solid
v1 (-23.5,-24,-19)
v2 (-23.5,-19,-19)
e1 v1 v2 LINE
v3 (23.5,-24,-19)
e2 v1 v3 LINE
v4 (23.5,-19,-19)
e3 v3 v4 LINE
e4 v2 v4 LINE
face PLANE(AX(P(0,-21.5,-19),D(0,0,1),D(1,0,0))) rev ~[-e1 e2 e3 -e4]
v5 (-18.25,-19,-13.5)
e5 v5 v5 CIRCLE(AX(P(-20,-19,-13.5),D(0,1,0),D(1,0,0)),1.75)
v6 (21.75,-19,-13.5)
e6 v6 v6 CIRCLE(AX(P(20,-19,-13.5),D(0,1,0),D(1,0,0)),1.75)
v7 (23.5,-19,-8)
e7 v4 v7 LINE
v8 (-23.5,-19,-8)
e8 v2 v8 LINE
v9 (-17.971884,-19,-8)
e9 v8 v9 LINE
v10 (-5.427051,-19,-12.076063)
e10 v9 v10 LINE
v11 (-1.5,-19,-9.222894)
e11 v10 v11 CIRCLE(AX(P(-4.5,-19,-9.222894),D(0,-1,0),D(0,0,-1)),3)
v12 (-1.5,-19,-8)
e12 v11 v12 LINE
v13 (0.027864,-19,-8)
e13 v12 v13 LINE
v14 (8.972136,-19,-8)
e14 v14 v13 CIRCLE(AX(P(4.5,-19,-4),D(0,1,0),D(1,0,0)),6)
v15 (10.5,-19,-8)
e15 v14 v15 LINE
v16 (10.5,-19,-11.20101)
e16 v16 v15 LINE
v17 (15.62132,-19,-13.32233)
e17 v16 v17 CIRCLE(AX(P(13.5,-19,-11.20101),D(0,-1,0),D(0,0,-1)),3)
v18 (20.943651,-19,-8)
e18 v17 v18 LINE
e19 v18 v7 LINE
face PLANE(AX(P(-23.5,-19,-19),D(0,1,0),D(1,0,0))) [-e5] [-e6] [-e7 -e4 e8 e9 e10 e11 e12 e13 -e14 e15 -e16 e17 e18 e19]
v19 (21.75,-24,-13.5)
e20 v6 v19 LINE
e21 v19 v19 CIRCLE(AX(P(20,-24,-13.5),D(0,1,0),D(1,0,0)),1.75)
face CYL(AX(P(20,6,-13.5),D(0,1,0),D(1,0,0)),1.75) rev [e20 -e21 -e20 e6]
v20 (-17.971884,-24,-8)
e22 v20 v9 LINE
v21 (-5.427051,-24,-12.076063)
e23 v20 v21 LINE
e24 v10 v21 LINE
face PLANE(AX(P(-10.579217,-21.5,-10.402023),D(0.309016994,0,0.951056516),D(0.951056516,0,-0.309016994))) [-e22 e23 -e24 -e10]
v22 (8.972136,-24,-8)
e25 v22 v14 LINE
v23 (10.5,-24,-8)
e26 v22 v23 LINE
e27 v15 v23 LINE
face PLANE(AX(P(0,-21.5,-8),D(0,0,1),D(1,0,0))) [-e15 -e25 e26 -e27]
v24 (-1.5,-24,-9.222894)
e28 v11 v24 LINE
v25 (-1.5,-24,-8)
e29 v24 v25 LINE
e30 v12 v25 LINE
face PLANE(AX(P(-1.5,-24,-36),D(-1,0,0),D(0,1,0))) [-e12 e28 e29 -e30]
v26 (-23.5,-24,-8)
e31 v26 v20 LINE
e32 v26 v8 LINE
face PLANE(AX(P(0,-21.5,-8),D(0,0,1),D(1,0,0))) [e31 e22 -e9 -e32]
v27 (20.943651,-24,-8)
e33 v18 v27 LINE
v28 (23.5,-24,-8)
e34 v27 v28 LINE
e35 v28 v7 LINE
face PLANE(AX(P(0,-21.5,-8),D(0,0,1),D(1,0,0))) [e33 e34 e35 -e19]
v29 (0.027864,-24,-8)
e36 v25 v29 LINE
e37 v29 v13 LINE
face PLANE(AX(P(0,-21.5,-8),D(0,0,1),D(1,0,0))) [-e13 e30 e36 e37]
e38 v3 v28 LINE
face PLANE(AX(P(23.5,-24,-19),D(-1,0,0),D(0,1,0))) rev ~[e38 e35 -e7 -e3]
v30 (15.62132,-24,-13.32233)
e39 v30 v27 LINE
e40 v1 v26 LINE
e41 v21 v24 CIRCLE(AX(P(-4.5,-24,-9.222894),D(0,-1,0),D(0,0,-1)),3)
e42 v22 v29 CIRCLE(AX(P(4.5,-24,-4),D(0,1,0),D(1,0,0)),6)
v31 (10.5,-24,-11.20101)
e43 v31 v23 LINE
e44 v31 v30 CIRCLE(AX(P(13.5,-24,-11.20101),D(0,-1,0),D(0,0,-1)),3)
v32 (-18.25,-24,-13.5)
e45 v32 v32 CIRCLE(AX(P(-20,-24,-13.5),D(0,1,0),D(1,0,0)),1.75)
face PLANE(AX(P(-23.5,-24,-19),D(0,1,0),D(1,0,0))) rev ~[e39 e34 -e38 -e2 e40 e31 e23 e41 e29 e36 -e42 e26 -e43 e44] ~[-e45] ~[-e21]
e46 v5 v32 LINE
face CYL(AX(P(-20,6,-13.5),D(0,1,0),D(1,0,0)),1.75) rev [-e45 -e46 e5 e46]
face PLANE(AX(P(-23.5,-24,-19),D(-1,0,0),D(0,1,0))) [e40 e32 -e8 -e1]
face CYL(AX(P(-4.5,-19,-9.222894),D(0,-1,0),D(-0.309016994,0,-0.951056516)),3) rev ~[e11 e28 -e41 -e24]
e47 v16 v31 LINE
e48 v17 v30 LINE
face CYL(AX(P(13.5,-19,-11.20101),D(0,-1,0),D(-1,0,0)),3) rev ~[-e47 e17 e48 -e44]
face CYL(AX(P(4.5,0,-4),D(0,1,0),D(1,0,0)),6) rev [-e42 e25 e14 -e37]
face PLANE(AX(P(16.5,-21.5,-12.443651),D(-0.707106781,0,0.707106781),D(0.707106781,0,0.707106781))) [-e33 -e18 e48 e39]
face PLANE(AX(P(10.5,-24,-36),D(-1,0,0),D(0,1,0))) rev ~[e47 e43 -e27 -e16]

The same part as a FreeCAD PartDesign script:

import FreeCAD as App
import Part
import Sketcher
from FreeCAD import Vector
Q = App.Units.Quantity


def edges_at(feature, points):
    """Names of the edges that pass closest to the given points."""
    edges = feature.Shape.Edges
    near = lambda p: min(range(len(edges)), key=lambda i: edges[i].distToShape(Part.Vertex(*p))[0])
    return sorted({f"Edge{near(p) + 1}" for p in points})

doc = App.newDocument("Part")
body = doc.addObject("PartDesign::Body", "Body")

# Sketch on XY plane
sketch1 = doc.addObject("Sketcher::SketchObject", "Sketch")
body.addObject(sketch1)
sketch1.AttachmentSupport = (doc.XY_Plane, [""])
sketch1.MapMode = "FlatFace"
sketch1.addGeometry(Part.Circle(Vector(0, 0, 0), Vector(0, 0, 1), 1.75), False)
sketch1.addConstraint(Sketcher.Constraint("Coincident", 0, 3, -1, 1))
sketch1.addConstraint(Sketcher.Constraint("Diameter", 0, Q("3.5 mm")))
pad1 = doc.addObject("PartDesign::Pad", "Pad")
body.addObject(pad1)
pad1.Profile = sketch1
pad1.Length = 44
body2 = doc.addObject("PartDesign::Body", "Body001")
doc.recompute()

body.Placement = App.Placement(Vector(0, 0, 0), App.Rotation(Vector(1, 0, 0), 90))
boolean = doc.addObject("PartDesign::Boolean", "Boolean")
body2.addObject(boolean)
boolean.Type = "Fuse"
boolean.addObjects([body])
body3 = doc.addObject("PartDesign::Body", "Body002")
doc.recompute()

body2.Placement = App.Placement(Vector(20, 6, -13.5), App.Rotation(Vector(0, 0, 1), 0))
boolean2 = doc.addObject("PartDesign::Boolean", "Boolean001")
body3.addObject(boolean2)
boolean2.Type = "Fuse"
boolean2.addObjects([body2])
body4 = doc.addObject("PartDesign::Body", "Body003")

# Sketch on XY plane
sketch2 = doc.addObject("Sketcher::SketchObject", "Sketch001")
body4.addObject(sketch2)
sketch2.AttachmentSupport = (doc.getObject("XY_Plane003"), [""])
sketch2.MapMode = "FlatFace"
sketch2.addGeometry(Part.Circle(Vector(0, 0, 0), Vector(0, 0, 1), 1.75), False)
sketch2.addConstraint(Sketcher.Constraint("Coincident", 0, 3, -1, 1))
sketch2.addConstraint(Sketcher.Constraint("Diameter", 0, Q("3.5 mm")))
pad2 = doc.addObject("PartDesign::Pad", "Pad001")
body4.addObject(pad2)
pad2.Profile = sketch2
pad2.Length = 44
body5 = doc.addObject("PartDesign::Body", "Body004")
doc.recompute()

body4.Placement = App.Placement(Vector(0, 0, 0), App.Rotation(Vector(1, 0, 0), 90))
boolean3 = doc.addObject("PartDesign::Boolean", "Boolean002")
body5.addObject(boolean3)
boolean3.Type = "Fuse"
boolean3.addObjects([body4])
body6 = doc.addObject("PartDesign::Body", "Body005")
doc.recompute()

body5.Placement = App.Placement(Vector(-20, 6, -13.5), App.Rotation(Vector(0, 0, 1), 0))
boolean4 = doc.addObject("PartDesign::Boolean", "Boolean003")
body6.addObject(boolean4)
boolean4.Type = "Fuse"
boolean4.addObjects([body5])
body7 = doc.addObject("PartDesign::Body", "Body006")

# Sketch on XY plane
sketch3 = doc.addObject("Sketcher::SketchObject", "Sketch002")
body7.addObject(sketch3)
sketch3.AttachmentSupport = (doc.getObject("XY_Plane006"), [""])
sketch3.MapMode = "FlatFace"
sketch3.addGeometry(Part.Circle(Vector(0, 0, 0), Vector(0, 0, 1), 6), False)
sketch3.addConstraint(Sketcher.Constraint("Coincident", 0, 3, -1, 1))
sketch3.addConstraint(Sketcher.Constraint("Diameter", 0, Q("12 mm")))
pad3 = doc.addObject("PartDesign::Pad", "Pad002")
body7.addObject(pad3)
pad3.Profile = sketch3
pad3.Length = 34
body8 = doc.addObject("PartDesign::Body", "Body007")
doc.recompute()

body7.Placement = App.Placement(Vector(0, 0, 0), App.Rotation(Vector(1, 0, 0), 90))
boolean5 = doc.addObject("PartDesign::Boolean", "Boolean004")
body8.addObject(boolean5)
boolean5.Type = "Fuse"
boolean5.addObjects([body7])
body9 = doc.addObject("PartDesign::Body", "Body008")
doc.recompute()

body8.Placement = App.Placement(Vector(4.5, 0, -4), App.Rotation(Vector(0, 0, 1), 0))
boolean6 = doc.addObject("PartDesign::Boolean", "Boolean005")
body9.addObject(boolean6)
boolean6.Type = "Fuse"
boolean6.addObjects([body8])
body10 = doc.addObject("PartDesign::Body", "Body009")
body10.AllowCompound = True
doc.recompute()

body10.BaseFeature = body9
doc.recompute()

boolean7 = doc.addObject("PartDesign::Boolean", "Boolean006")
body10.addObject(boolean7)
boolean7.Type = "Fuse"
boolean7.addObjects([body3])
doc.recompute()

boolean8 = doc.addObject("PartDesign::Boolean", "Boolean007")
body10.addObject(boolean8)
boolean8.Type = "Fuse"
boolean8.addObjects([body6])
body11 = doc.addObject("PartDesign::Body", "Body010")

# Sketch on XY plane
sketch4 = doc.addObject("Sketcher::SketchObject", "Sketch003")
body11.addObject(sketch4)
sketch4.AttachmentSupport = (doc.getObject("XY_Plane010"), [""])
sketch4.MapMode = "FlatFace"
sketch4.addGeometry(Part.Circle(Vector(0, 0, 0), Vector(0, 0, 1), 1.75), False)
sketch4.addConstraint(Sketcher.Constraint("Coincident", 0, 3, -1, 1))
sketch4.addConstraint(Sketcher.Constraint("Diameter", 0, Q("3.5 mm")))
pad4 = doc.addObject("PartDesign::Pad", "Pad003")
body11.addObject(pad4)
pad4.Profile = sketch4
pad4.Length = 44
body12 = doc.addObject("PartDesign::Body", "Body011")
doc.recompute()

body11.Placement = App.Placement(Vector(0, 0, 0), App.Rotation(Vector(1, 0, 0), 90))
boolean9 = doc.addObject("PartDesign::Boolean", "Boolean008")
body12.addObject(boolean9)
boolean9.Type = "Fuse"
boolean9.addObjects([body11])
body13 = doc.addObject("PartDesign::Body", "Body012")
doc.recompute()

body12.Placement = App.Placement(Vector(-20, 6, -2.5), App.Rotation(Vector(0, 0, 1), 0))
boolean10 = doc.addObject("PartDesign::Boolean", "Boolean009")
body13.addObject(boolean10)
boolean10.Type = "Fuse"
boolean10.addObjects([body12])
body14 = doc.addObject("PartDesign::Body", "Body013")

# Sketch on XY plane
sketch5 = doc.addObject("Sketcher::SketchObject", "Sketch004")
body14.addObject(sketch5)
sketch5.AttachmentSupport = (doc.getObject("XY_Plane013"), [""])
sketch5.MapMode = "FlatFace"
sketch5.addGeometry(Part.LineSegment(Vector(0, 5, 0), Vector(0, 0, 0)), False)
sketch5.addGeometry(Part.LineSegment(Vector(0, 0, 0), Vector(37, 0, 0)), False)
sketch5.addGeometry(Part.LineSegment(Vector(37, 0, 0), Vector(37, 5, 0)), False)
sketch5.addGeometry(Part.LineSegment(Vector(37, 5, 0), Vector(0, 5, 0)), False)
sketch5.addConstraint(Sketcher.Constraint("Coincident", 0, 2, 1, 1))
sketch5.addConstraint(Sketcher.Constraint("Coincident", 1, 2, 2, 1))
sketch5.addConstraint(Sketcher.Constraint("Coincident", 2, 2, 3, 1))
sketch5.addConstraint(Sketcher.Constraint("Coincident", 3, 2, 0, 1))
sketch5.addConstraint(Sketcher.Constraint("Vertical", 0))
sketch5.addConstraint(Sketcher.Constraint("Horizontal", 1))
sketch5.addConstraint(Sketcher.Constraint("Vertical", 2))
sketch5.addConstraint(Sketcher.Constraint("Horizontal", 3))
sketch5.addConstraint(Sketcher.Constraint("Coincident", 0, 2, -1, 1))
sketch5.addConstraint(Sketcher.Constraint("DistanceX", 1, 1, 1, 2, Q("37 mm")))
sketch5.addConstraint(Sketcher.Constraint("DistanceY", 0, 2, 0, 1, Q("5 mm")))
pad5 = doc.addObject("PartDesign::Pad", "Pad004")
body14.addObject(pad5)
pad5.Profile = sketch5
pad5.Length = 14
body15 = doc.addObject("PartDesign::Body", "Body014")
doc.recompute()

body14.Placement = App.Placement(Vector(0, 0, 0), App.Rotation(Vector(0, 1, 0), 18))
boolean11 = doc.addObject("PartDesign::Boolean", "Boolean010")
body15.addObject(boolean11)
boolean11.Type = "Fuse"
boolean11.addObjects([body14])
body16 = doc.addObject("PartDesign::Body", "Body015")
doc.recompute()

body15.Placement = App.Placement(Vector(-32.5, -24, -17), App.Rotation(Vector(0, 0, 1), 0))
boolean12 = doc.addObject("PartDesign::Boolean", "Boolean011")
body16.addObject(boolean12)
boolean12.Type = "Fuse"
boolean12.addObjects([body15])
body17 = doc.addObject("PartDesign::Body", "Body016")

# Sketch on XY plane
sketch6 = doc.addObject("Sketcher::SketchObject", "Sketch005")
body17.addObject(sketch6)
sketch6.AttachmentSupport = (doc.getObject("XY_Plane016"), [""])
sketch6.MapMode = "FlatFace"
sketch6.addGeometry(Part.LineSegment(Vector(0, 5, 0), Vector(0, 0, 0)), False)
sketch6.addGeometry(Part.LineSegment(Vector(0, 0, 0), Vector(22, 0, 0)), False)
sketch6.addGeometry(Part.LineSegment(Vector(22, 0, 0), Vector(22, 5, 0)), False)
sketch6.addGeometry(Part.LineSegment(Vector(22, 5, 0), Vector(0, 5, 0)), False)
sketch6.addConstraint(Sketcher.Constraint("Coincident", 0, 2, 1, 1))
sketch6.addConstraint(Sketcher.Constraint("Coincident", 1, 2, 2, 1))
sketch6.addConstraint(Sketcher.Constraint("Coincident", 2, 2, 3, 1))
sketch6.addConstraint(Sketcher.Constraint("Coincident", 3, 2, 0, 1))
sketch6.addConstraint(Sketcher.Constraint("Vertical", 0))
sketch6.addConstraint(Sketcher.Constraint("Horizontal", 1))
sketch6.addConstraint(Sketcher.Constraint("Vertical", 2))
sketch6.addConstraint(Sketcher.Constraint("Horizontal", 3))
sketch6.addConstraint(Sketcher.Constraint("Coincident", 0, 2, -1, 1))
sketch6.addConstraint(Sketcher.Constraint("DistanceX", 1, 1, 1, 2, Q("22 mm")))
sketch6.addConstraint(Sketcher.Constraint("DistanceY", 0, 2, 0, 1, Q("5 mm")))
pad6 = doc.addObject("PartDesign::Pad", "Pad005")
body17.addObject(pad6)
pad6.Profile = sketch6
pad6.Length = 11
body18 = doc.addObject("PartDesign::Body", "Body017")
doc.recompute()

body17.Placement = App.Placement(Vector(0, 0, 0), App.Rotation(Vector(0, 1, 0), 315))
boolean13 = doc.addObject("PartDesign::Boolean", "Boolean012")
body18.addObject(boolean13)
boolean13.Type = "Fuse"
boolean13.addObjects([body17])
body19 = doc.addObject("PartDesign::Body", "Body018")
doc.recompute()

body18.Placement = App.Placement(Vector(16.5, -24, -27), App.Rotation(Vector(0, 0, 1), 0))
boolean14 = doc.addObject("PartDesign::Boolean", "Boolean013")
body19.addObject(boolean14)
boolean14.Type = "Fuse"
boolean14.addObjects([body18])
body20 = doc.addObject("PartDesign::Body", "Body019")

# Sketch on XY plane
sketch7 = doc.addObject("Sketcher::SketchObject", "Sketch006")
body20.addObject(sketch7)
sketch7.AttachmentSupport = (doc.getObject("XY_Plane019"), [""])
sketch7.MapMode = "FlatFace"
sketch7.AttachmentOffset = App.Placement(Vector(0, 0, -35), App.Rotation())
sketch7.addGeometry(Part.LineSegment(Vector(-1.5, -19, 0), Vector(-1.5, -24, 0)), False)
sketch7.addGeometry(Part.LineSegment(Vector(-1.5, -24, 0), Vector(10.5, -24, 0)), False)
sketch7.addGeometry(Part.LineSegment(Vector(10.5, -24, 0), Vector(10.5, -19, 0)), False)
sketch7.addGeometry(Part.LineSegment(Vector(10.5, -19, 0), Vector(-1.5, -19, 0)), False)
sketch7.addConstraint(Sketcher.Constraint("Coincident", 0, 2, 1, 1))
sketch7.addConstraint(Sketcher.Constraint("Coincident", 1, 2, 2, 1))
sketch7.addConstraint(Sketcher.Constraint("Coincident", 2, 2, 3, 1))
sketch7.addConstraint(Sketcher.Constraint("Coincident", 3, 2, 0, 1))
sketch7.addConstraint(Sketcher.Constraint("Vertical", 0))
sketch7.addConstraint(Sketcher.Constraint("Horizontal", 1))
sketch7.addConstraint(Sketcher.Constraint("Vertical", 2))
sketch7.addConstraint(Sketcher.Constraint("Horizontal", 3))
sketch7.addConstraint(Sketcher.Constraint("DistanceX", 1, 1, 1, 2, Q("12 mm")))
sketch7.addConstraint(Sketcher.Constraint("DistanceY", 0, 2, 0, 1, Q("5 mm")))
sketch7.addConstraint(Sketcher.Constraint("DistanceY", 0, 2, -1, 1, Q("24 mm")))
sketch7.addConstraint(Sketcher.Constraint("DistanceX", 0, 2, -1, 1, Q("1.5 mm")))
pad7 = doc.addObject("PartDesign::Pad", "Pad006")
body20.addObject(pad7)
pad7.Profile = sketch7
pad7.Length = 31
body21 = doc.addObject("PartDesign::Body", "Body020")

# Sketch on XY plane
sketch8 = doc.addObject("Sketcher::SketchObject", "Sketch007")
body21.addObject(sketch8)
sketch8.AttachmentSupport = (doc.getObject("XY_Plane020"), [""])
sketch8.MapMode = "FlatFace"
sketch8.addGeometry(Part.Circle(Vector(0, 0, 0), Vector(0, 0, 1), 1.75), False)
sketch8.addConstraint(Sketcher.Constraint("Coincident", 0, 3, -1, 1))
sketch8.addConstraint(Sketcher.Constraint("Diameter", 0, Q("3.5 mm")))
pad8 = doc.addObject("PartDesign::Pad", "Pad007")
body21.addObject(pad8)
pad8.Profile = sketch8
pad8.Length = 44
body22 = doc.addObject("PartDesign::Body", "Body021")
doc.recompute()

body21.Placement = App.Placement(Vector(0, 0, 0), App.Rotation(Vector(1, 0, 0), 90))
boolean15 = doc.addObject("PartDesign::Boolean", "Boolean014")
body22.addObject(boolean15)
boolean15.Type = "Fuse"
boolean15.addObjects([body21])
body23 = doc.addObject("PartDesign::Body", "Body022")
body23.AllowCompound = True
doc.recompute()

body22.Placement = App.Placement(Vector(20, 6, -2.5), App.Rotation(Vector(0, 0, 1), 0))
boolean16 = doc.addObject("PartDesign::Boolean", "Boolean015")
body23.addObject(boolean16)
boolean16.Type = "Fuse"
boolean16.addObjects([body22])
doc.recompute()

boolean17 = doc.addObject("PartDesign::Boolean", "Boolean016")
body23.addObject(boolean17)
boolean17.Type = "Fuse"
boolean17.addObjects([body13])
doc.recompute()

boolean18 = doc.addObject("PartDesign::Boolean", "Boolean017")
body23.addObject(boolean18)
boolean18.Type = "Fuse"
boolean18.addObjects([body9])
doc.recompute()

boolean19 = doc.addObject("PartDesign::Boolean", "Boolean018")
body23.addObject(boolean19)
boolean19.Type = "Fuse"
boolean19.addObjects([body16])
doc.recompute()

boolean20 = doc.addObject("PartDesign::Boolean", "Boolean019")
body23.addObject(boolean20)
boolean20.Type = "Fuse"
boolean20.addObjects([body19])
doc.recompute()

boolean21 = doc.addObject("PartDesign::Boolean", "Boolean020")
body23.addObject(boolean21)
boolean21.Type = "Fuse"
boolean21.addObjects([body20])
body24 = doc.addObject("PartDesign::Body", "Body023")

# Sketch on XY plane
sketch9 = doc.addObject("Sketcher::SketchObject", "Sketch008")
body24.addObject(sketch9)
sketch9.AttachmentSupport = (doc.getObject("XY_Plane023"), [""])
sketch9.MapMode = "FlatFace"
sketch9.AttachmentOffset = App.Placement(Vector(0, 0, -19), App.Rotation())
sketch9.addGeometry(Part.LineSegment(Vector(-23.5, -19, 0), Vector(-23.5, -24, 0)), False)
sketch9.addGeometry(Part.LineSegment(Vector(-23.5, -24, 0), Vector(23.5, -24, 0)), False)
sketch9.addGeometry(Part.LineSegment(Vector(23.5, -24, 0), Vector(23.5, -19, 0)), False)
sketch9.addGeometry(Part.LineSegment(Vector(23.5, -19, 0), Vector(-23.5, -19, 0)), False)
sketch9.addConstraint(Sketcher.Constraint("Coincident", 0, 2, 1, 1))
sketch9.addConstraint(Sketcher.Constraint("Coincident", 1, 2, 2, 1))
sketch9.addConstraint(Sketcher.Constraint("Coincident", 2, 2, 3, 1))
sketch9.addConstraint(Sketcher.Constraint("Coincident", 3, 2, 0, 1))
sketch9.addConstraint(Sketcher.Constraint("Vertical", 0))
sketch9.addConstraint(Sketcher.Constraint("Horizontal", 1))
sketch9.addConstraint(Sketcher.Constraint("Vertical", 2))
sketch9.addConstraint(Sketcher.Constraint("Horizontal", 3))
sketch9.addConstraint(Sketcher.Constraint("DistanceX", 1, 1, 1, 2, Q("47 mm")))
sketch9.addConstraint(Sketcher.Constraint("DistanceY", 0, 2, 0, 1, Q("5 mm")))
sketch9.addConstraint(Sketcher.Constraint("DistanceY", 0, 2, -1, 1, Q("24 mm")))
sketch9.addConstraint(Sketcher.Constraint("DistanceX", 0, 2, -1, 1, Q("23.5 mm")))
pad9 = doc.addObject("PartDesign::Pad", "Pad008")
body24.addObject(pad9)
pad9.Profile = sketch9
pad9.Length = 27
doc.recompute()

boolean22 = doc.addObject("PartDesign::Boolean", "Boolean021")
body24.addObject(boolean22)
boolean22.Type = "Cut"
boolean22.addObjects([body23])
doc.recompute()

fillet = doc.addObject("PartDesign::Fillet", "Fillet")
body24.addObject(fillet)
fillet.Base = (boolean22, edges_at(boolean22, [
    (-23.5, -21.5, 8),
    (-23.5, -21.5, -5.204),
    (23.5, -21.5, 8),
    (-1.5, -21.5, -12.352),
    (10.5, -21.5, -17.444),
    (23.5, -21.5, -4.444),
]))
fillet.Radius = 3
body25 = doc.addObject("PartDesign::Body", "Body024")

# Sketch on XY plane
sketch10 = doc.addObject("Sketcher::SketchObject", "Sketch009")
body25.addObject(sketch10)
sketch10.AttachmentSupport = (doc.getObject("XY_Plane024"), [""])
sketch10.MapMode = "FlatFace"
sketch10.AttachmentOffset = App.Placement(Vector(0, 0, -18), App.Rotation())
sketch10.addGeometry(Part.LineSegment(Vector(-23.5, -19, 0), Vector(-23.5, -24, 0)), False)
sketch10.addGeometry(Part.LineSegment(Vector(-23.5, -24, 0), Vector(23.5, -24, 0)), False)
sketch10.addGeometry(Part.LineSegment(Vector(23.5, -24, 0), Vector(23.5, -19, 0)), False)
sketch10.addGeometry(Part.LineSegment(Vector(23.5, -19, 0), Vector(-23.5, -19, 0)), False)
sketch10.addConstraint(Sketcher.Constraint("Coincident", 0, 2, 1, 1))
sketch10.addConstraint(Sketcher.Constraint("Coincident", 1, 2, 2, 1))
sketch10.addConstraint(Sketcher.Constraint("Coincident", 2, 2, 3, 1))
sketch10.addConstraint(Sketcher.Constraint("Coincident", 3, 2, 0, 1))
sketch10.addConstraint(Sketcher.Constraint("Vertical", 0))
sketch10.addConstraint(Sketcher.Constraint("Horizontal", 1))
sketch10.addConstraint(Sketcher.Constraint("Vertical", 2))
sketch10.addConstraint(Sketcher.Constraint("Horizontal", 3))
sketch10.addConstraint(Sketcher.Constraint("DistanceX", 1, 1, 1, 2, Q("47 mm")))
sketch10.addConstraint(Sketcher.Constraint("DistanceY", 0, 2, 0, 1, Q("5 mm")))
sketch10.addConstraint(Sketcher.Constraint("DistanceY", 0, 2, -1, 1, Q("24 mm")))
sketch10.addConstraint(Sketcher.Constraint("DistanceX", 0, 2, -1, 1, Q("23.5 mm")))
pad10 = doc.addObject("PartDesign::Pad", "Pad009")
body25.addObject(pad10)
pad10.Profile = sketch10
pad10.Length = 11
doc.recompute()

boolean23 = doc.addObject("PartDesign::Boolean", "Boolean022")
body25.addObject(boolean23)
boolean23.Type = "Cut"
boolean23.addObjects([body24])
body26 = doc.addObject("PartDesign::Body", "Body025")
doc.recompute()

body25.Placement = App.Placement(Vector(0, 0, -1), App.Rotation(Vector(0, 0, 1), 0))
boolean24 = doc.addObject("PartDesign::Boolean", "Boolean023")
body26.addObject(boolean24)
boolean24.Type = "Fuse"
boolean24.addObjects([body25])
doc.recompute()

boolean25 = doc.addObject("PartDesign::Boolean", "Boolean024")
body26.addObject(boolean25)
boolean25.Type = "Cut"
boolean25.addObjects([body10])

doc.recompute()
